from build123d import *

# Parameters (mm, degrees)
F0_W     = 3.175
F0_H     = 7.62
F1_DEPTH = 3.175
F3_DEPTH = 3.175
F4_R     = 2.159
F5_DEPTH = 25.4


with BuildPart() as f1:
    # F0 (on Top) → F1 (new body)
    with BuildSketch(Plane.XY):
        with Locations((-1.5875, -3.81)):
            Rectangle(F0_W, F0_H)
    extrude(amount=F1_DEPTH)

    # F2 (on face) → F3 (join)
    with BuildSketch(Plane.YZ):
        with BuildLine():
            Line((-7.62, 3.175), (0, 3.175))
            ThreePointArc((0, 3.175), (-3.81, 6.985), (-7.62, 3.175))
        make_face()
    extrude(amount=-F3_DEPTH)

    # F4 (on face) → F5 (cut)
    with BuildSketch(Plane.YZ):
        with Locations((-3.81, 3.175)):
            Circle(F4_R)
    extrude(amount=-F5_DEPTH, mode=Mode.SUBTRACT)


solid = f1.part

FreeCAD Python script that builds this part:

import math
import FreeCAD as App
import Part
import Sketcher
Q = App.Units.Quantity


def add_polygon(sketch, points):
    """Adds a closed chain of lines whose ends are joined by coincident constraints."""
    first, n = sketch.GeometryCount, len(points)
    for a, b in zip(points, points[1:] + points[:1]):
        sketch.addGeometry(Part.LineSegment(App.Vector(*a, 0), App.Vector(*b, 0)), False)
    for i in range(n):
        sketch.addConstraint(Sketcher.Constraint("Coincident", first + i, 2, first + (i + 1) % n, 1))

doc = App.newDocument("Part")
body = doc.addObject("PartDesign::Body", "Body")

# Sketch on XY plane
sketch1 = doc.addObject("Sketcher::SketchObject", "Sketch")
body.addObject(sketch1)
sketch1.AttachmentSupport = (doc.XY_Plane, [""])
sketch1.MapMode = "FlatFace"
add_polygon(sketch1, [(-3.175, 0), (-3.175, -7.62), (0, -7.62), (0, 0)])  # lines 0-3
sketch1.addConstraint([
    Sketcher.Constraint("Vertical", 0),
    Sketcher.Constraint("Horizontal", 1),
    Sketcher.Constraint("Vertical", 2),
    Sketcher.Constraint("Horizontal", 3),
    Sketcher.Constraint("Coincident", 2, 2, -1, 1),
    Sketcher.Constraint("DistanceY", 0, 2, 0, 1, Q("0.3 in")),
    Sketcher.Constraint("DistanceX", 1, 1, 1, 2, Q("0.125 in")),
])
pad1 = doc.addObject("PartDesign::Pad", "Pad")
body.addObject(pad1)
pad1.Profile = sketch1
pad1.Length = Q("0.125 in")

# Sketch on YZ plane
sketch2 = doc.addObject("Sketcher::SketchObject", "Sketch001")
body.addObject(sketch2)
sketch2.AttachmentSupport = (doc.YZ_Plane, [""])
sketch2.MapMode = "FlatFace"
sketch2.addGeometry([
    Part.LineSegment(App.Vector(-7.62, 3.175, 0), App.Vector(0, 3.175, 0)),
    Part.ArcOfCircle(Part.Circle(App.Vector(-3.81, 3.175, 0), App.Vector(0, 0, 1), 3.81), math.radians(0), math.radians(180)),
], False)
sketch2.addConstraint([
    Sketcher.Constraint("Coincident", 0, 1, 1, 2),
    Sketcher.Constraint("Coincident", 1, 1, 0, 2),
    Sketcher.Constraint("Horizontal", 0),
    Sketcher.Constraint("PointOnObject", 1, 1, -2),
    Sketcher.Constraint("Horizontal", 1, 3, 0, 1),
    Sketcher.Constraint("Radius", 1, Q("0.15 in")),
    Sketcher.Constraint("DistanceY", -1, 1, 1, 3, Q("0.125 in")),
])
pad2 = doc.addObject("PartDesign::Pad", "Pad001")
body.addObject(pad2)
pad2.Profile = sketch2
pad2.Length = Q("0.125 in")
pad2.Reversed = True

# Sketch on YZ plane
sketch3 = doc.addObject("Sketcher::SketchObject", "Sketch002")
body.addObject(sketch3)
sketch3.AttachmentSupport = (doc.YZ_Plane, [""])
sketch3.MapMode = "FlatFace"
sketch3.addGeometry(Part.Circle(App.Vector(-3.81, 3.175, 0), App.Vector(0, 0, 1), 2.159), False)
sketch3.addConstraint([
    Sketcher.Constraint("Diameter", 0, Q("0.17 in")),
    Sketcher.Constraint("DistanceX", 0, 3, -1, 1, Q("0.15 in")),
    Sketcher.Constraint("DistanceY", -1, 1, 0, 3, Q("0.125 in")),
])
pocket1 = doc.addObject("PartDesign::Pocket", "Pocket")
body.addObject(pocket1)
pocket1.Profile = sketch3
pocket1.Length = Q("1 in")

doc.recompute()
